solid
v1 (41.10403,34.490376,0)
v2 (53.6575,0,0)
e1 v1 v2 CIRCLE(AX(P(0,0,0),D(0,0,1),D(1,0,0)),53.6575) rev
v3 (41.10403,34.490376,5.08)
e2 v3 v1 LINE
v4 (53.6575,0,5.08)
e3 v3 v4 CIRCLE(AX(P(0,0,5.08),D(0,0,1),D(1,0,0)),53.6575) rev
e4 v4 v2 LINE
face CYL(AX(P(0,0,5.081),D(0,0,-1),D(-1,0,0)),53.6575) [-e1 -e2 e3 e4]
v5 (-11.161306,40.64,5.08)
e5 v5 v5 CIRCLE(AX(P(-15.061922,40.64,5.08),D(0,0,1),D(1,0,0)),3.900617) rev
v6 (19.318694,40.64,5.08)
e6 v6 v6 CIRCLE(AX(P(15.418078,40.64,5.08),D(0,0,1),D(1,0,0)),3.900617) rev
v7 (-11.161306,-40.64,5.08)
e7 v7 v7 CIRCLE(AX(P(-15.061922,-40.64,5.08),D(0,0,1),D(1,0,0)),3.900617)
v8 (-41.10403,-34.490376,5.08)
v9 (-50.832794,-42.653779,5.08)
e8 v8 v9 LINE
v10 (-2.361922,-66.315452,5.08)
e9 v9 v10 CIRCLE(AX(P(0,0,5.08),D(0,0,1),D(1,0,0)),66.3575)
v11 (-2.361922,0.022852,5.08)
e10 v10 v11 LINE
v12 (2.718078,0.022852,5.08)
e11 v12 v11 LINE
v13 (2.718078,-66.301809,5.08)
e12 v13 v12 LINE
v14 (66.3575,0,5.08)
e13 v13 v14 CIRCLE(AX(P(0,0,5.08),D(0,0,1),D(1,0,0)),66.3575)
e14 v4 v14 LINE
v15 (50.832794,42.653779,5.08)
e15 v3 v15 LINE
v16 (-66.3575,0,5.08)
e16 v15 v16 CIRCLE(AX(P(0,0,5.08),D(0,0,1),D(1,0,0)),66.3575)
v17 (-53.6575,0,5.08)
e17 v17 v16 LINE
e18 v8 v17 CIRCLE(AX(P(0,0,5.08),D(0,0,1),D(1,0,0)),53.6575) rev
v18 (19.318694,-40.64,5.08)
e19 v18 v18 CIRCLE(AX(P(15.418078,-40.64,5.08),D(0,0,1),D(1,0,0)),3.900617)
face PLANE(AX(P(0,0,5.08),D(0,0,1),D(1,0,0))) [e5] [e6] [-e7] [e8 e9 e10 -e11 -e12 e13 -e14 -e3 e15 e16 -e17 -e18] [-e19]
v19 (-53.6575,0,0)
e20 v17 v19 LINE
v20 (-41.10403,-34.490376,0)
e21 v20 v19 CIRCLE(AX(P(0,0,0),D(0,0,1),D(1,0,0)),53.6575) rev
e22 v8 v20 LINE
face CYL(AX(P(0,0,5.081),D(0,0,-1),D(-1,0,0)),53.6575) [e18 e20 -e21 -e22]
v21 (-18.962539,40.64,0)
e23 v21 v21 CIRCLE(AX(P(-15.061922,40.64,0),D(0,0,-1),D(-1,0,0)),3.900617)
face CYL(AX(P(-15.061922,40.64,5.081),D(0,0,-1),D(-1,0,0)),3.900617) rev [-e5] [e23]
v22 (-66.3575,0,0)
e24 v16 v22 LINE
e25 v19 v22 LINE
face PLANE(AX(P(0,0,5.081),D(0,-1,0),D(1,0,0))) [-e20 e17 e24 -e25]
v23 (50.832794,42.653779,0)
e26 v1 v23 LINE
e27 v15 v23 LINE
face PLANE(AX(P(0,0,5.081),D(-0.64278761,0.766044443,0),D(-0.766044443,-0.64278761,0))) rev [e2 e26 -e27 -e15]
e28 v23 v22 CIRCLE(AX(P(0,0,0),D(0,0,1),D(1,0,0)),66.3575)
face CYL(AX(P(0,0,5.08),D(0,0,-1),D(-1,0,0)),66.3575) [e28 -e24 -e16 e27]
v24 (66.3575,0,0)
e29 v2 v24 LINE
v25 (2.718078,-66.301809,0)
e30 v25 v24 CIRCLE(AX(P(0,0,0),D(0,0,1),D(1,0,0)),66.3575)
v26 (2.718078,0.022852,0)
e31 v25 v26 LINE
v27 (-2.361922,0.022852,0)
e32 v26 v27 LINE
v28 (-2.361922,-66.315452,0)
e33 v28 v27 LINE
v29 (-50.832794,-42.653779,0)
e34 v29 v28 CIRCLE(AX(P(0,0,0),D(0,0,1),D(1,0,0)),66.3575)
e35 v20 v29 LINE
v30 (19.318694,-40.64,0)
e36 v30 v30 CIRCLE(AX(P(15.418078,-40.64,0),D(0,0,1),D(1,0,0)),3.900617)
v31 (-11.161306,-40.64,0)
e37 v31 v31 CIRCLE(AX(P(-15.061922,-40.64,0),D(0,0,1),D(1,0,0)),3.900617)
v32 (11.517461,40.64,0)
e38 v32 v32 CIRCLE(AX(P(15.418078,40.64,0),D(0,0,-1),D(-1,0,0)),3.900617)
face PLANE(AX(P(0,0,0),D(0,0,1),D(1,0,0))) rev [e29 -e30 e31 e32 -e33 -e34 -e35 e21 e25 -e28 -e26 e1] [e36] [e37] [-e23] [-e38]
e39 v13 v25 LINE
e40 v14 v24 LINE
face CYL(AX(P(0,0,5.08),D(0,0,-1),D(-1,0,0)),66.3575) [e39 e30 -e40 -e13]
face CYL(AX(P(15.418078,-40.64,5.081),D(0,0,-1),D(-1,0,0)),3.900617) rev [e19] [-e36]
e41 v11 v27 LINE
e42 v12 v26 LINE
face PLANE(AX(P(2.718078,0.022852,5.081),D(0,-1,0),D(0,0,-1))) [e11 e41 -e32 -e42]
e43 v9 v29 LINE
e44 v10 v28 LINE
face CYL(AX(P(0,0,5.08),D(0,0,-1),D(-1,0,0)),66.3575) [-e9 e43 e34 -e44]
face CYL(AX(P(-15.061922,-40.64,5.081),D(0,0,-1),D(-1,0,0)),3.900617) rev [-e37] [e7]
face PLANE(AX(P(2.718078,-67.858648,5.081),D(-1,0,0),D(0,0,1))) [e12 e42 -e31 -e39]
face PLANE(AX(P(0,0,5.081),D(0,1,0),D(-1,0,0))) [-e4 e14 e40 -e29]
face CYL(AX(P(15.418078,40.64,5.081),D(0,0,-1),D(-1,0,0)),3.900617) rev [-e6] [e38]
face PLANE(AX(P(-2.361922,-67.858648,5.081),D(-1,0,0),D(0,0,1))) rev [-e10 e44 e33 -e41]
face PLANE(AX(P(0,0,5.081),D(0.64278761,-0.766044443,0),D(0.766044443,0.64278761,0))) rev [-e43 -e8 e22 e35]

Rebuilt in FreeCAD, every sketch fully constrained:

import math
import FreeCAD as App
import Part
import Sketcher

V = App.Vector
Q = App.Units.Quantity


def add_polygon(sketch, points):
    """Adds a closed chain of lines whose ends are joined by coincident constraints."""
    first, n = sketch.GeometryCount, len(points)
    for a, b in zip(points, points[1:] + points[:1]):
        sketch.addGeometry(Part.LineSegment(App.Vector(*a, 0), App.Vector(*b, 0)), False)
    for i in range(n):
        sketch.addConstraint(Sketcher.Constraint("Coincident", first + i, 2, first + (i + 1) % n, 1))

doc = App.newDocument("Part")
params = doc.addObject("Spreadsheet::Sheet", "Params")
for row, (alias, value) in enumerate([
    ("sketch1_diameter", "5.225 in"),
    ("pad1_length", "0.2 in"),
    ("sketch2_width", "0.5 in"),
    ("sketch3_width", "0.5 in"),
    ("sketch8_width", "0.2 in"),
], start=1):
    params.set(f"A{row}", alias)
    params.set(f"B{row}", "=" + value)
    params.setAlias(f"B{row}", alias)

body = doc.addObject("PartDesign::Body", "Body")

# Sketch on XY plane
sketch1 = doc.addObject("Sketcher::SketchObject", "Sketch")
body.addObject(sketch1)
sketch1.AttachmentSupport = (doc.XY_Plane, [""])
sketch1.MapMode = "FlatFace"
sketch1.addGeometry(Part.Circle(V(0, 0, 0), V(0, 0, 1), 66), False)
sketch1.addConstraint([
    Sketcher.Constraint("Coincident", 0, 3, -1, 1),
    Sketcher.Constraint("Diameter", 0, Q("5.225 in")),
])
sketch1.setExpression("Constraints[1]", "Params.sketch1_diameter")
pad1 = doc.addObject("PartDesign::Pad", "Pad")
body.addObject(pad1)
pad1.Profile = sketch1
pad1.setExpression("Length", "Params.pad1_length")

# Sketch on XY plane
sketch2 = doc.addObject("Sketcher::SketchObject", "Sketch001")
body.addObject(sketch2)
sketch2.AttachmentSupport = (doc.XY_Plane, [""])
sketch2.MapMode = "FlatFace"
sketch2.addGeometry([
    Part.LineSegment(V(-51, -43, 0), V(-41, -34, 0)),
    Part.ArcOfCircle(Part.Circle(V(0, 0, 0), V(0, 0, 1), 54), math.radians(-180), math.radians(-140)),
    Part.LineSegment(V(-54, 0, 0), V(-66, 0, 0)),
    Part.ArcOfCircle(Part.Circle(V(0, 0, 0), V(0, 0, 1), 66), math.radians(180), math.radians(220)),
], False)
sketch2.addConstraint([
    Sketcher.Constraint("Coincident", 0, 2, 1, 2),
    Sketcher.Constraint("Coincident", 1, 1, 2, 1),
    Sketcher.Constraint("Coincident", 2, 2, 3, 1),
    Sketcher.Constraint("Coincident", 3, 2, 0, 1),
    Sketcher.Constraint("Horizontal", 2),
    Sketcher.Constraint("Coincident", 1, 3, -1, 1),
    Sketcher.Constraint("Coincident", 3, 3, -1, 1),
    Sketcher.Constraint("PointOnObject", 1, 1, -1),
    Sketcher.Constraint("DistanceX", 2, 2, 2, 1, Q("0.5 in")),
    Sketcher.Constraint("Angle", 0, Q("40 deg")),
    Sketcher.Constraint("Radius", 1, Q("2.1125 in")),
    Sketcher.Constraint("DistanceX", 0, 2, -1, 1, Q("41.10403 mm")),
])
sketch2.setExpression("Constraints[8]", "Params.sketch2_width")
pocket1 = doc.addObject("PartDesign::Pocket", "Pocket")
body.addObject(pocket1)
pocket1.Profile = sketch2
pocket1.Type = "UpToFirst"
pocket1.Reversed = True

# Sketch on XY plane
sketch3 = doc.addObject("Sketcher::SketchObject", "Sketch002")
body.addObject(sketch3)
sketch3.AttachmentSupport = (doc.XY_Plane, [""])
sketch3.MapMode = "FlatFace"
sketch3.addGeometry([
    Part.ArcOfCircle(Part.Circle(V(0, 0, 0), V(0, 0, 1), 66), math.radians(0), math.radians(40)),
    Part.LineSegment(V(51, 43, 0), V(41, 34, 0)),
    Part.ArcOfCircle(Part.Circle(V(0, 0, 0), V(0, 0, 1), 54), math.radians(0), math.radians(40)),
    Part.LineSegment(V(54, 0, 0), V(66, 0, 0)),
], False)
sketch3.addConstraint([
    Sketcher.Constraint("Coincident", 0, 2, 1, 1),
    Sketcher.Constraint("Coincident", 1, 2, 2, 2),
    Sketcher.Constraint("Coincident", 2, 1, 3, 1),
    Sketcher.Constraint("Coincident", 3, 2, 0, 1),
    Sketcher.Constraint("Horizontal", 3),
    Sketcher.Constraint("Coincident", 0, 3, -1, 1),
    Sketcher.Constraint("Coincident", 2, 3, -1, 1),
    Sketcher.Constraint("PointOnObject", 2, 1, -1),
    Sketcher.Constraint("DistanceX", 3, 1, 3, 2, Q("0.5 in")),
    Sketcher.Constraint("Angle", 1, Q("-140 deg")),
    Sketcher.Constraint("Radius", 0, Q("2.6125 in")),
    Sketcher.Constraint("DistanceY", -1, 1, 0, 2, Q("42.653779 mm")),
])
sketch3.setExpression("Constraints[8]", "Params.sketch3_width")
pocket2 = doc.addObject("PartDesign::Pocket", "Pocket001")
body.addObject(pocket2)
pocket2.Profile = sketch3
pocket2.Type = "UpToFirst"
pocket2.Reversed = True

# Sketch on XY plane
sketch4 = doc.addObject("Sketcher::SketchObject", "Sketch003")
body.addObject(sketch4)
sketch4.AttachmentSupport = (doc.XY_Plane, [""])
sketch4.MapMode = "FlatFace"
sketch4.addGeometry(Part.Circle(V(15.4, -40.6, 0), V(0, 0, 1), 3.9), False)
sketch4.addConstraint([
    Sketcher.Constraint("DistanceY", 0, 3, -1, 1, Q("1.6 in")),
    Sketcher.Constraint("Diameter", 0, Q("7.801234 mm")),
    Sketcher.Constraint("DistanceX", -1, 1, 0, 3, Q("15.418078 mm")),
])
pocket3 = doc.addObject("PartDesign::Pocket", "Pocket002")
body.addObject(pocket3)
pocket3.Profile = sketch4
pocket3.Type = "UpToFirst"
pocket3.Reversed = True

# Sketch on XY plane
sketch5 = doc.addObject("Sketcher::SketchObject", "Sketch004")
body.addObject(sketch5)
sketch5.AttachmentSupport = (doc.XY_Plane, [""])
sketch5.MapMode = "FlatFace"
sketch5.addGeometry(Part.Circle(V(-15.1, -40.6, 0), V(0, 0, 1), 3.9), False)
sketch5.addConstraint([
    Sketcher.Constraint("DistanceY", 0, 3, -1, 1, Q("1.6 in")),
    Sketcher.Constraint("Diameter", 0, Q("7.801234 mm")),
    Sketcher.Constraint("DistanceX", 0, 3, -1, 1, Q("15.061922 mm")),
])
pocket4 = doc.addObject("PartDesign::Pocket", "Pocket003")
body.addObject(pocket4)
pocket4.Profile = sketch5
pocket4.Type = "UpToFirst"
pocket4.Reversed = True

# Sketch on XY plane
sketch6 = doc.addObject("Sketcher::SketchObject", "Sketch005")
body.addObject(sketch6)
sketch6.AttachmentSupport = (doc.XY_Plane, [""])
sketch6.MapMode = "FlatFace"
sketch6.addGeometry(Part.Circle(V(15.4, 40.6, 0), V(0, 0, 1), 3.9), False)
sketch6.addConstraint([
    Sketcher.Constraint("DistanceY", -1, 1, 0, 3, Q("1.6 in")),
    Sketcher.Constraint("Diameter", 0, Q("7.801234 mm")),
    Sketcher.Constraint("DistanceX", -1, 1, 0, 3, Q("15.418078 mm")),
])
pocket5 = doc.addObject("PartDesign::Pocket", "Pocket004")
body.addObject(pocket5)
pocket5.Profile = sketch6
pocket5.Type = "UpToFirst"
pocket5.Reversed = True

# Sketch on XY plane
sketch7 = doc.addObject("Sketcher::SketchObject", "Sketch006")
body.addObject(sketch7)
sketch7.AttachmentSupport = (doc.XY_Plane, [""])
sketch7.MapMode = "FlatFace"
sketch7.addGeometry(Part.Circle(V(-15.1, 40.6, 0), V(0, 0, 1), 3.9), False)
sketch7.addConstraint([
    Sketcher.Constraint("DistanceY", -1, 1, 0, 3, Q("1.6 in")),
    Sketcher.Constraint("Diameter", 0, Q("7.801234 mm")),
    Sketcher.Constraint("DistanceX", 0, 3, -1, 1, Q("15.061922 mm")),
])
pocket6 = doc.addObject("PartDesign::Pocket", "Pocket005")
body.addObject(pocket6)
pocket6.Profile = sketch7
pocket6.Type = "UpToFirst"
pocket6.Reversed = True

# Sketch on XY plane
sketch8 = doc.addObject("Sketcher::SketchObject", "Sketch007")
body.addObject(sketch8)
sketch8.AttachmentSupport = (doc.XY_Plane, [""])
sketch8.MapMode = "FlatFace"
add_polygon(sketch8, [(-2, 0), (-2, -68), (3, -68), (3, 0)])  # lines 0-3
sketch8.addConstraint([
    Sketcher.Constraint("Vertical", 0),
    Sketcher.Constraint("Horizontal", 1),
    Sketcher.Constraint("Vertical", 2),
    Sketcher.Constraint("Horizontal", 3),
    Sketcher.Constraint("DistanceX", 1, 1, 1, 2, Q("0.2 in")),
    Sketcher.Constraint("DistanceY", 0, 2, 0, 1, Q("2.6725 in")),
    Sketcher.Constraint("DistanceY", 0, 2, -1, 1, Q("67.858648 mm")),
    Sketcher.Constraint("DistanceX", 0, 2, -1, 1, Q("2.361922 mm")),
])
sketch8.setExpression("Constraints[8]", "Params.sketch8_width")
pocket7 = doc.addObject("PartDesign::Pocket", "Pocket006")
body.addObject(pocket7)
pocket7.Profile = sketch8
pocket7.Type = "UpToFirst"
pocket7.Reversed = True

doc.recompute()
